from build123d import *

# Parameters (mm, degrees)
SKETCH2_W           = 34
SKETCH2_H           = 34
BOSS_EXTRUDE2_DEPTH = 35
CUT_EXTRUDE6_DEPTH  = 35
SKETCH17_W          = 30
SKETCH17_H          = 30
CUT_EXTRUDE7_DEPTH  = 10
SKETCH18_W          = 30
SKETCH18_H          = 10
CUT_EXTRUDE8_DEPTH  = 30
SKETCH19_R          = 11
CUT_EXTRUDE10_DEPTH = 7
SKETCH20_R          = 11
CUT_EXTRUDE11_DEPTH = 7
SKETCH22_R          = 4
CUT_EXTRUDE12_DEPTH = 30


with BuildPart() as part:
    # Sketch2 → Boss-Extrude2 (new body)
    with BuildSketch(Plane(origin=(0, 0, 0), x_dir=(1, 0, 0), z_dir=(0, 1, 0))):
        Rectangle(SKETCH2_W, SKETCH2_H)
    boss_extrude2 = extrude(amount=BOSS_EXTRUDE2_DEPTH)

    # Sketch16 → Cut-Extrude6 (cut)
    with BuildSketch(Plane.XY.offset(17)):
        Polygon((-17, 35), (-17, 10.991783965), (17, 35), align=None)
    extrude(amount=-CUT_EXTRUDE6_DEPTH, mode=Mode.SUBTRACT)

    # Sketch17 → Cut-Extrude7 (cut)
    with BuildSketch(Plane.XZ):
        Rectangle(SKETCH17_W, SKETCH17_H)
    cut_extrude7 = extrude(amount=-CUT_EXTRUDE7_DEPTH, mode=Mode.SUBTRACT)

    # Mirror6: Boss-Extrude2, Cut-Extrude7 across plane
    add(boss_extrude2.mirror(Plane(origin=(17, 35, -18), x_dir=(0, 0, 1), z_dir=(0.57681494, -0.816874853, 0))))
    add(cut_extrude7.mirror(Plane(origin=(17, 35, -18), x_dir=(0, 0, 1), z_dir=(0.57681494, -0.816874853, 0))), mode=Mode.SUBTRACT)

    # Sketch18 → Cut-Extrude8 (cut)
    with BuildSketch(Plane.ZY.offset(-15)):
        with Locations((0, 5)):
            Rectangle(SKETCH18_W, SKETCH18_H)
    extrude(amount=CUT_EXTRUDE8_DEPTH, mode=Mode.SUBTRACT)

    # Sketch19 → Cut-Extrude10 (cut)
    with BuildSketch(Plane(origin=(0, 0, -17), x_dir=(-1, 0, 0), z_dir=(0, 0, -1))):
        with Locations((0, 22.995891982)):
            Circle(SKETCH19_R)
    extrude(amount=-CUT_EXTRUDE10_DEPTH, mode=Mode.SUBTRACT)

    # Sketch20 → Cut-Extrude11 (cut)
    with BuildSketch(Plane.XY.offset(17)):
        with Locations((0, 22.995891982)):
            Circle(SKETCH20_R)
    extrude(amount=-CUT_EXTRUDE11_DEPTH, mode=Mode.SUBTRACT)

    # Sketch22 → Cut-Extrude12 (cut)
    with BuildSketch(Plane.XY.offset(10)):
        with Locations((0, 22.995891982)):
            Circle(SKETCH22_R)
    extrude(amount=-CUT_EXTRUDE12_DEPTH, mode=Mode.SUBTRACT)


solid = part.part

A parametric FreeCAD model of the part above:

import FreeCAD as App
import Part
import Sketcher

V = App.Vector

doc = App.newDocument("Part")
body = doc.addObject("PartDesign::Body", "Body")

# Sketch on XZ plane
sketch1 = doc.addObject("Sketcher::SketchObject", "Sketch")
body.addObject(sketch1)
sketch1.AttachmentSupport = (doc.XZ_Plane, [""])
sketch1.MapMode = "FlatFace"
sketch1.addGeometry([
    Part.LineSegment(V(-17, -17, 0), V(-17, 17, 0)),
    Part.LineSegment(V(-17, 17, 0), V(17, 17, 0)),
    Part.LineSegment(V(17, 17, 0), V(17, -17, 0)),
    Part.LineSegment(V(17, -17, 0), V(-17, -17, 0)),
], False)
sketch1.addConstraint([
    Sketcher.Constraint("Coincident", 0, 2, 1, 1),
    Sketcher.Constraint("Coincident", 1, 2, 2, 1),
    Sketcher.Constraint("Coincident", 2, 2, 3, 1),
    Sketcher.Constraint("Coincident", 3, 2, 0, 1),
    Sketcher.Constraint("Vertical", 0),
    Sketcher.Constraint("Horizontal", 1),
    Sketcher.Constraint("Vertical", 2),
    Sketcher.Constraint("Horizontal", 3),
    Sketcher.Constraint("Symmetric", 0, 2, 2, 2, -1, 1),
    Sketcher.Constraint("Equal", 3, 0),
    Sketcher.Constraint("DistanceX", 1, 1, 1, 2, 34.0),
])
pad1 = doc.addObject("PartDesign::Pad", "Pad")
body.addObject(pad1)
pad1.Profile = sketch1
pad1.Length = 35
pad1.Reversed = True

# Sketch on XY plane
sketch2 = doc.addObject("Sketcher::SketchObject", "Sketch001")
body.addObject(sketch2)
sketch2.AttachmentSupport = (doc.XY_Plane, [""])
sketch2.MapMode = "FlatFace"
sketch2.AttachmentOffset = App.Placement(V(0, 0, 17), App.Rotation())
sketch2.addGeometry([
    Part.LineSegment(V(-17, 35, 0), V(-17, 11, 0)),
    Part.LineSegment(V(-17, 11, 0), V(17, 35, 0)),
    Part.LineSegment(V(17, 35, 0), V(-17, 35, 0)),
], False)
sketch2.addConstraint([
    Sketcher.Constraint("Coincident", 0, 2, 1, 1),
    Sketcher.Constraint("Coincident", 1, 2, 2, 1),
    Sketcher.Constraint("Coincident", 2, 2, 0, 1),
    Sketcher.Constraint("Vertical", 0),
    Sketcher.Constraint("Horizontal", 2),
    Sketcher.Constraint("DistanceX", 2, 2, 2, 1, 34.0),
    Sketcher.Constraint("DistanceX", 0, 2, -1, 1, 17.0),
    Sketcher.Constraint("DistanceY", -1, 1, 1, 2, 35.0),
    Sketcher.Constraint("DistanceY", 0, 2, 0, 1, 24.008216),
])
pocket1 = doc.addObject("PartDesign::Pocket", "Pocket")
body.addObject(pocket1)
pocket1.Profile = sketch2
pocket1.Length = 35

# Sketch on XZ plane
sketch3 = doc.addObject("Sketcher::SketchObject", "Sketch002")
body.addObject(sketch3)
sketch3.AttachmentSupport = (doc.XZ_Plane, [""])
sketch3.MapMode = "FlatFace"
sketch3.addGeometry([
    Part.LineSegment(V(-15, 15, 0), V(-15, -15, 0)),
    Part.LineSegment(V(-15, -15, 0), V(15, -15, 0)),
    Part.LineSegment(V(15, -15, 0), V(15, 15, 0)),
    Part.LineSegment(V(15, 15, 0), V(-15, 15, 0)),
], False)
sketch3.addConstraint([
    Sketcher.Constraint("Coincident", 0, 2, 1, 1),
    Sketcher.Constraint("Coincident", 1, 2, 2, 1),
    Sketcher.Constraint("Coincident", 2, 2, 3, 1),
    Sketcher.Constraint("Coincident", 3, 2, 0, 1),
    Sketcher.Constraint("Vertical", 0),
    Sketcher.Constraint("Horizontal", 1),
    Sketcher.Constraint("Vertical", 2),
    Sketcher.Constraint("Horizontal", 3),
    Sketcher.Constraint("Symmetric", 0, 2, 2, 2, -1, 1),
    Sketcher.Constraint("Equal", 3, 0),
    Sketcher.Constraint("DistanceX", 1, 1, 1, 2, 30.0),
])
pocket2 = doc.addObject("PartDesign::Pocket", "Pocket001")
body.addObject(pocket2)
pocket2.Profile = sketch3
pocket2.Length = 10
doc.recompute()

datumplane = doc.addObject("PartDesign::Plane", "DatumPlane")
body.addObject(datumplane)
datumplane.Placement = App.Placement(V(-10.835334, 15.344803, 0), App.Rotation(V(-0.816874853, -0.57681494, 0), V(0, 0, -1), V(0.57681494, -0.816874853, 0), "ZXY"))
mirrored = doc.addObject("PartDesign::Mirrored", "Mirrored")
body.addObject(mirrored)
mirrored.Originals = [pad1, pocket2]
mirrored.MirrorPlane = (datumplane, [""])
body.Tip = mirrored

# Sketch on YZ plane
sketch4 = doc.addObject("Sketcher::SketchObject", "Sketch003")
body.addObject(sketch4)
sketch4.AttachmentSupport = (doc.YZ_Plane, [""])
sketch4.MapMode = "FlatFace"
sketch4.AttachmentOffset = App.Placement(V(0, 0, 15), App.Rotation())
sketch4.addGeometry([
    Part.LineSegment(V(10, -15, 0), V(0, -15, 0)),
    Part.LineSegment(V(0, -15, 0), V(0, 15, 0)),
    Part.LineSegment(V(0, 15, 0), V(10, 15, 0)),
    Part.LineSegment(V(10, 15, 0), V(10, -15, 0)),
], False)
sketch4.addConstraint([
    Sketcher.Constraint("Coincident", 0, 2, 1, 1),
    Sketcher.Constraint("Coincident", 1, 2, 2, 1),
    Sketcher.Constraint("Coincident", 2, 2, 3, 1),
    Sketcher.Constraint("Coincident", 3, 2, 0, 1),
    Sketcher.Constraint("Horizontal", 0),
    Sketcher.Constraint("Vertical", 1),
    Sketcher.Constraint("Horizontal", 2),
    Sketcher.Constraint("Vertical", 3),
    Sketcher.Constraint("Symmetric", 0, 2, 1, 2, -1, 1),
    Sketcher.Constraint("DistanceX", 0, 2, 0, 1, 10.0),
    Sketcher.Constraint("DistanceY", 1, 1, 1, 2, 30.0),
])
pocket3 = doc.addObject("PartDesign::Pocket", "Pocket002")
body.addObject(pocket3)
pocket3.Profile = sketch4
pocket3.Length = 30

# Sketch on XY plane
sketch5 = doc.addObject("Sketcher::SketchObject", "Sketch004")
body.addObject(sketch5)
sketch5.AttachmentSupport = (doc.XY_Plane, [""])
sketch5.MapMode = "FlatFace"
sketch5.AttachmentOffset = App.Placement(V(0, 0, -17), App.Rotation())
sketch5.addGeometry(Part.Circle(V(0, 23, 0), V(0, 0, 1), 11), False)
sketch5.addConstraint([
    Sketcher.Constraint("PointOnObject", 0, 3, -2),
    Sketcher.Constraint("Diameter", 0, 22.0),
    Sketcher.Constraint("DistanceY", -1, 1, 0, 3, 22.995892),
])
pocket4 = doc.addObject("PartDesign::Pocket", "Pocket003")
body.addObject(pocket4)
pocket4.Profile = sketch5
pocket4.Length = 7
pocket4.Reversed = True

# Sketch on XY plane
sketch6 = doc.addObject("Sketcher::SketchObject", "Sketch005")
body.addObject(sketch6)
sketch6.AttachmentSupport = (doc.XY_Plane, [""])
sketch6.MapMode = "FlatFace"
sketch6.AttachmentOffset = App.Placement(V(0, 0, 17), App.Rotation())
sketch6.addGeometry(Part.Circle(V(0, 23, 0), V(0, 0, 1), 11), False)
sketch6.addConstraint([
    Sketcher.Constraint("PointOnObject", 0, 3, -2),
    Sketcher.Constraint("Diameter", 0, 22.0),
    Sketcher.Constraint("DistanceY", -1, 1, 0, 3, 22.995892),
])
pocket5 = doc.addObject("PartDesign::Pocket", "Pocket004")
body.addObject(pocket5)
pocket5.Profile = sketch6
pocket5.Length = 7

# Sketch on XY plane
sketch7 = doc.addObject("Sketcher::SketchObject", "Sketch006")
body.addObject(sketch7)
sketch7.AttachmentSupport = (doc.XY_Plane, [""])
sketch7.MapMode = "FlatFace"
sketch7.AttachmentOffset = App.Placement(V(0, 0, 10), App.Rotation())
sketch7.addGeometry(Part.Circle(V(0, 23, 0), V(0, 0, 1), 4), False)
sketch7.addConstraint([
    Sketcher.Constraint("PointOnObject", 0, 3, -2),
    Sketcher.Constraint("Diameter", 0, 8.0),
    Sketcher.Constraint("DistanceY", -1, 1, 0, 3, 22.995892),
])
pocket6 = doc.addObject("PartDesign::Pocket", "Pocket005")
body.addObject(pocket6)
pocket6.Profile = sketch7
pocket6.Length = 30

doc.recompute()
